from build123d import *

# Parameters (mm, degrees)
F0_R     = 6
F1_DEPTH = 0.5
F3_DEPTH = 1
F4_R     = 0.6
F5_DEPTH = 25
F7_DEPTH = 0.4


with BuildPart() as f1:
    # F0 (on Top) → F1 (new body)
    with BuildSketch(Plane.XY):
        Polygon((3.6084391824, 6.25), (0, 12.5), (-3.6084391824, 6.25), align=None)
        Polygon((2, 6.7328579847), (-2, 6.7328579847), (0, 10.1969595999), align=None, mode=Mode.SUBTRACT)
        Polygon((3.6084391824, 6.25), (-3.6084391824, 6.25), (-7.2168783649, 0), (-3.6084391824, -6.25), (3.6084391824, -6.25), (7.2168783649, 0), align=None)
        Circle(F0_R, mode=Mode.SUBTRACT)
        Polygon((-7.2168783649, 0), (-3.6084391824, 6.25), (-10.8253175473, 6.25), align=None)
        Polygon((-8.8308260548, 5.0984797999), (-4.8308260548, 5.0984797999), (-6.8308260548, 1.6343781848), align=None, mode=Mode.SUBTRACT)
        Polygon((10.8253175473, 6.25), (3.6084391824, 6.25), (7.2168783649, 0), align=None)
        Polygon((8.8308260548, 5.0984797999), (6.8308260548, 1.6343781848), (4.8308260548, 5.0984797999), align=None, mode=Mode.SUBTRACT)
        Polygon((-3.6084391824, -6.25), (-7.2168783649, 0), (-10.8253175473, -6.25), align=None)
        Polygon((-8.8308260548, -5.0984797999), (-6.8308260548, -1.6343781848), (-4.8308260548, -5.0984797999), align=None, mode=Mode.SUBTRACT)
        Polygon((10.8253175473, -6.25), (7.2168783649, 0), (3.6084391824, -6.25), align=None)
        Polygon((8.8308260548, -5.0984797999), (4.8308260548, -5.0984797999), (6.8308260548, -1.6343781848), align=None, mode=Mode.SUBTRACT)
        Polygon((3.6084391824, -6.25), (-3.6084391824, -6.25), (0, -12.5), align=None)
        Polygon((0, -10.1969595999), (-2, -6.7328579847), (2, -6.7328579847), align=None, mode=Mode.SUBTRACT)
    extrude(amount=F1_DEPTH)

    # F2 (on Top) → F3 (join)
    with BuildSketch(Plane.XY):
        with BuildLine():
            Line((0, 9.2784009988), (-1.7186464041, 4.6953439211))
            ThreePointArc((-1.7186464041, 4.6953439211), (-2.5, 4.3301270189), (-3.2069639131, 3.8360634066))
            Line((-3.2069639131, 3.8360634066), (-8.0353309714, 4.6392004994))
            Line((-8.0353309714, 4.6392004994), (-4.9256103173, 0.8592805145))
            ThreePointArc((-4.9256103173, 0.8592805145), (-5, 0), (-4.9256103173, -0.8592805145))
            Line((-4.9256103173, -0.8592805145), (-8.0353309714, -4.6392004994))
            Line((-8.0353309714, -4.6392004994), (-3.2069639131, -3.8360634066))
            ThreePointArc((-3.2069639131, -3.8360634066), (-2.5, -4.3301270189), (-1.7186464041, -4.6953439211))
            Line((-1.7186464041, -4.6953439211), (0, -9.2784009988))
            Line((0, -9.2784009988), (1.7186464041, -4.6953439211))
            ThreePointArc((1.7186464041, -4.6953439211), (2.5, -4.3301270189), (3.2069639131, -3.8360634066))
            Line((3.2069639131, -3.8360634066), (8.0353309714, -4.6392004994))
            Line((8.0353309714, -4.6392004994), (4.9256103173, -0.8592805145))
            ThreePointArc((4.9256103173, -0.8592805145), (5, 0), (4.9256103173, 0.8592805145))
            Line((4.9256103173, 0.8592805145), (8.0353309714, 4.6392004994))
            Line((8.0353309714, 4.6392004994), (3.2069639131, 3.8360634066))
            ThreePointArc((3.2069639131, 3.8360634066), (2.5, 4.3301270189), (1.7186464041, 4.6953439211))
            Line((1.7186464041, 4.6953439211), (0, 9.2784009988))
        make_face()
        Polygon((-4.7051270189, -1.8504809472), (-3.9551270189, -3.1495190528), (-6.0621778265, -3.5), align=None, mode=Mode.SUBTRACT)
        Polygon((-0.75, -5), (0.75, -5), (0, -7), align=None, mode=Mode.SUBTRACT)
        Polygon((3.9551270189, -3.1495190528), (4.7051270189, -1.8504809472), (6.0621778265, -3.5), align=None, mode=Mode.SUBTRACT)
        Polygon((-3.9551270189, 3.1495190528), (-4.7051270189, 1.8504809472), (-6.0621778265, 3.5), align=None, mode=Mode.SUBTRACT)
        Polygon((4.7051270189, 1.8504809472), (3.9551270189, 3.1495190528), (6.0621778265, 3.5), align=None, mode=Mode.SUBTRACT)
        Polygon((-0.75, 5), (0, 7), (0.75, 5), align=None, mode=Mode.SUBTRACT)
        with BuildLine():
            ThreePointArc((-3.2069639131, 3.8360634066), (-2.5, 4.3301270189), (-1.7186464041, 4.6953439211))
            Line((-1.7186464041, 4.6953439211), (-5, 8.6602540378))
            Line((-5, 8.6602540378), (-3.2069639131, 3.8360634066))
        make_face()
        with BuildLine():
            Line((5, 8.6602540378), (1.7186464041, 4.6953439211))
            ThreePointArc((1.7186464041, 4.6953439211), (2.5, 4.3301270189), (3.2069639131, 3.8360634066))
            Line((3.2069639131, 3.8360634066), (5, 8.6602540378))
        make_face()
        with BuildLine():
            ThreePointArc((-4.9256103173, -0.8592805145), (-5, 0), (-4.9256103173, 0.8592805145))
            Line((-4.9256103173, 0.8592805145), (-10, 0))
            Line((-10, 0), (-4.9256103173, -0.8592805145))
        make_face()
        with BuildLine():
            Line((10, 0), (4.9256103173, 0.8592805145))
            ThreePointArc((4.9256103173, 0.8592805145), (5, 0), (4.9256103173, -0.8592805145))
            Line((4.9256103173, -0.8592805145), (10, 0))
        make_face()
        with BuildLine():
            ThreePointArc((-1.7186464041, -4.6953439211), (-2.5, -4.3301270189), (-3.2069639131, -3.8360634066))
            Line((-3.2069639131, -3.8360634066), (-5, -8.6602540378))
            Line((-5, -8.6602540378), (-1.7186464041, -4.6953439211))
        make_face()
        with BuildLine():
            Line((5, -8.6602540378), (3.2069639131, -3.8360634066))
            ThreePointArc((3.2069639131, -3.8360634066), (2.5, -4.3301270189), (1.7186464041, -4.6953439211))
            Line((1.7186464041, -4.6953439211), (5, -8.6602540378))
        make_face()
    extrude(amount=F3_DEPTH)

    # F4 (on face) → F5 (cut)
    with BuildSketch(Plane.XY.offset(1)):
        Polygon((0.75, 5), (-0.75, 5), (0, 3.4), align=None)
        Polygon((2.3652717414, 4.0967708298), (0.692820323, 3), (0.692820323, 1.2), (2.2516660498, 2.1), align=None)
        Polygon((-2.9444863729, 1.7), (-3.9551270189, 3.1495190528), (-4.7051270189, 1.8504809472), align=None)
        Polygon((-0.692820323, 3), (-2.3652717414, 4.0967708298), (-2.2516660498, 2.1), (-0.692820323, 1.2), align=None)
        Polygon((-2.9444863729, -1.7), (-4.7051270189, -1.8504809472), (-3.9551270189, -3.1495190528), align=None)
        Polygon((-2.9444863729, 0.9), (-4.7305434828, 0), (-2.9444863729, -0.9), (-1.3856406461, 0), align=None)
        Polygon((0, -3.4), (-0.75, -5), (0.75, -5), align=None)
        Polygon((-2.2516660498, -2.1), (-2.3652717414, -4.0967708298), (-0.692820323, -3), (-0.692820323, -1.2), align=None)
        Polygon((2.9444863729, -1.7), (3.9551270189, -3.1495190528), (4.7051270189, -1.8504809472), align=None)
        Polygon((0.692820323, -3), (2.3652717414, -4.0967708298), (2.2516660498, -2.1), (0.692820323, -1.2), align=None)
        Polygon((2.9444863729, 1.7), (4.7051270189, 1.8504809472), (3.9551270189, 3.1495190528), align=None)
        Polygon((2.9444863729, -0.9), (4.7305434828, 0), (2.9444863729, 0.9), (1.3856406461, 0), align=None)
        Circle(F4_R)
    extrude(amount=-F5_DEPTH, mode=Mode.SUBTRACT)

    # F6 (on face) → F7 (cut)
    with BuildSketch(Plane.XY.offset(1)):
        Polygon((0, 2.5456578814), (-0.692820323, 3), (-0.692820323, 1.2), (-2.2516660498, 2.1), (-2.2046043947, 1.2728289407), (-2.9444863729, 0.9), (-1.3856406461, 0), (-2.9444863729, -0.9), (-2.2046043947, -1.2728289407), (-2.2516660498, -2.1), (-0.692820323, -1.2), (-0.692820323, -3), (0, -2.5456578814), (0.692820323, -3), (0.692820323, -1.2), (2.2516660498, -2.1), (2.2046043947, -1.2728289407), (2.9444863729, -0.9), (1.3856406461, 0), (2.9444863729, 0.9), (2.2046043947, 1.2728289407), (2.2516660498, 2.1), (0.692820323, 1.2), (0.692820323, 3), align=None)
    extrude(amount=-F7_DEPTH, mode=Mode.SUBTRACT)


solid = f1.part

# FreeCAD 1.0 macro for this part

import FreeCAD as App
import Part
import Sketcher
from FreeCAD import Vector
Q = App.Units.Quantity

doc = App.newDocument("Part")
body = doc.addObject("PartDesign::Body", "Body")

sketch1 = body.newObject("Sketcher::SketchObject", "Sketch")
sketch1.AttachmentSupport = (doc.getObject("XY_Plane"), [""])
sketch1.MapMode = "FlatFace"
sketch1.addGeometry([
    Part.LineSegment(Vector(3.608439, 6.25, 0), Vector(0, 12.5, 0)),
    Part.LineSegment(Vector(0, 12.5, 0), Vector(-3.608439, 6.25, 0)),
    Part.LineSegment(Vector(-3.608439, 6.25, 0), Vector(-10.825318, 6.25, 0)),
    Part.LineSegment(Vector(-10.825318, 6.25, 0), Vector(-7.216878, 0, 0)),
    Part.LineSegment(Vector(-7.216878, 0, 0), Vector(-10.825318, -6.25, 0)),
    Part.LineSegment(Vector(-10.825318, -6.25, 0), Vector(-3.608439, -6.25, 0)),
    Part.LineSegment(Vector(-3.608439, -6.25, 0), Vector(0, -12.5, 0)),
    Part.LineSegment(Vector(0, -12.5, 0), Vector(3.608439, -6.25, 0)),
    Part.LineSegment(Vector(3.608439, -6.25, 0), Vector(10.825318, -6.25, 0)),
    Part.LineSegment(Vector(10.825318, -6.25, 0), Vector(7.216878, 0, 0)),
    Part.LineSegment(Vector(7.216878, 0, 0), Vector(10.825318, 6.25, 0)),
    Part.LineSegment(Vector(10.825318, 6.25, 0), Vector(3.608439, 6.25, 0)),
    Part.LineSegment(Vector(-4.830826, -5.09848, 0), Vector(-8.830826, -5.09848, 0)),
    Part.LineSegment(Vector(-8.830826, -5.09848, 0), Vector(-6.830826, -1.634378, 0)),
    Part.LineSegment(Vector(-6.830826, -1.634378, 0), Vector(-4.830826, -5.09848, 0)),
    Part.LineSegment(Vector(2, -6.732858, 0), Vector(0, -10.19696, 0)),
    Part.LineSegment(Vector(0, -10.19696, 0), Vector(-2, -6.732858, 0)),
    Part.LineSegment(Vector(-2, -6.732858, 0), Vector(2, -6.732858, 0)),
    Part.LineSegment(Vector(6.830826, -1.634378, 0), Vector(8.830826, -5.09848, 0)),
    Part.LineSegment(Vector(8.830826, -5.09848, 0), Vector(4.830826, -5.09848, 0)),
    Part.LineSegment(Vector(4.830826, -5.09848, 0), Vector(6.830826, -1.634378, 0)),
    Part.LineSegment(Vector(-6.830826, 1.634378, 0), Vector(-8.830826, 5.09848, 0)),
    Part.LineSegment(Vector(-8.830826, 5.09848, 0), Vector(-4.830826, 5.09848, 0)),
    Part.LineSegment(Vector(-4.830826, 5.09848, 0), Vector(-6.830826, 1.634378, 0)),
    Part.Circle(Vector(0, 0, 0), Vector(0, 0, 1), 6),
    Part.LineSegment(Vector(4.830826, 5.09848, 0), Vector(8.830826, 5.09848, 0)),
    Part.LineSegment(Vector(8.830826, 5.09848, 0), Vector(6.830826, 1.634378, 0)),
    Part.LineSegment(Vector(6.830826, 1.634378, 0), Vector(4.830826, 5.09848, 0)),
    Part.LineSegment(Vector(0, 10.19696, 0), Vector(2, 6.732858, 0)),
    Part.LineSegment(Vector(2, 6.732858, 0), Vector(-2, 6.732858, 0)),
    Part.LineSegment(Vector(-2, 6.732858, 0), Vector(0, 10.19696, 0)),
], False)
sketch1.addConstraint([
    Sketcher.Constraint("Coincident", 0, 2, 1, 1),
    Sketcher.Constraint("Coincident", 1, 2, 2, 1),
    Sketcher.Constraint("Coincident", 2, 2, 3, 1),
    Sketcher.Constraint("Coincident", 3, 2, 4, 1),
    Sketcher.Constraint("Coincident", 4, 2, 5, 1),
    Sketcher.Constraint("Coincident", 5, 2, 6, 1),
    Sketcher.Constraint("Coincident", 6, 2, 7, 1),
    Sketcher.Constraint("Coincident", 7, 2, 8, 1),
    Sketcher.Constraint("Coincident", 8, 2, 9, 1),
    Sketcher.Constraint("Coincident", 9, 2, 10, 1),
    Sketcher.Constraint("Coincident", 10, 2, 11, 1),
    Sketcher.Constraint("Coincident", 11, 2, 0, 1),
    Sketcher.Constraint("Coincident", 12, 2, 13, 1),
    Sketcher.Constraint("Coincident", 13, 2, 14, 1),
    Sketcher.Constraint("Coincident", 14, 2, 12, 1),
    Sketcher.Constraint("Coincident", 15, 2, 16, 1),
    Sketcher.Constraint("Coincident", 16, 2, 17, 1),
    Sketcher.Constraint("Coincident", 17, 2, 15, 1),
    Sketcher.Constraint("Coincident", 18, 2, 19, 1),
    Sketcher.Constraint("Coincident", 19, 2, 20, 1),
    Sketcher.Constraint("Coincident", 20, 2, 18, 1),
    Sketcher.Constraint("Coincident", 21, 2, 22, 1),
    Sketcher.Constraint("Coincident", 22, 2, 23, 1),
    Sketcher.Constraint("Coincident", 23, 2, 21, 1),
    Sketcher.Constraint("Coincident", 25, 2, 26, 1),
    Sketcher.Constraint("Coincident", 26, 2, 27, 1),
    Sketcher.Constraint("Coincident", 27, 2, 25, 1),
    Sketcher.Constraint("Coincident", 28, 2, 29, 1),
    Sketcher.Constraint("Coincident", 29, 2, 30, 1),
    Sketcher.Constraint("Coincident", 30, 2, 28, 1),
    Sketcher.Constraint("Horizontal", 2),
    Sketcher.Constraint("Horizontal", 5),
    Sketcher.Constraint("Horizontal", 8),
    Sketcher.Constraint("Horizontal", 11),
    Sketcher.Constraint("Horizontal", 12),
    Sketcher.Constraint("Horizontal", 17),
    Sketcher.Constraint("Horizontal", 19),
    Sketcher.Constraint("Horizontal", 22),
    Sketcher.Constraint("Horizontal", 25),
    Sketcher.Constraint("Horizontal", 29),
    Sketcher.Constraint("Coincident", 24, 3, -1, 1),
    Sketcher.Constraint("Symmetric", 0, 2, 6, 2, -1, 1),
    Sketcher.Constraint("Symmetric", 1, 2, 7, 2, -1, 1),
    Sketcher.Constraint("Symmetric", 3, 2, 9, 2, -1, 1),
    Sketcher.Constraint("Symmetric", 4, 2, 10, 2, -1, 1),
    Sketcher.Constraint("Symmetric", 18, 2, 21, 2, -1, 1),
    Sketcher.Constraint("Symmetric", 20, 2, 23, 2, -1, 1),
    Sketcher.Constraint("Symmetric", 12, 2, 25, 2, -1, 1),
    Sketcher.Constraint("Symmetric", 13, 2, 26, 2, -1, 1),
    Sketcher.Constraint("Symmetric", 16, 2, 28, 2, -1, 1),
    Sketcher.Constraint("Symmetric", 15, 2, 30, 2, -1, 1),
    Sketcher.Constraint("Symmetric", 5, 2, 7, 2, -2),
    Sketcher.Constraint("Symmetric", 12, 2, 18, 2, -2),
    Sketcher.Constraint("Symmetric", 13, 2, 20, 2, -2),
    Sketcher.Constraint("PointOnObject", 0, 2, -2),
    Sketcher.Constraint("PointOnObject", 3, 2, -1),
    Sketcher.Constraint("PointOnObject", 15, 2, -2),
    Sketcher.Constraint("Parallel", 0, 3),
    Sketcher.Constraint("Parallel", 1, 4),
    Sketcher.Constraint("Parallel", 3, 6),
    Sketcher.Constraint("Parallel", 6, 9),
    Sketcher.Constraint("Parallel", 10, 13),
    Sketcher.Constraint("Parallel", 9, 14),
    Sketcher.Constraint("Parallel", 13, 15),
    Sketcher.Constraint("Parallel", 14, 16),
    Sketcher.Constraint("Parallel", 15, 20),
    Sketcher.Constraint("Parallel", 20, 23),
    Sketcher.Constraint("Parallel", 21, 27),
    Sketcher.Constraint("Parallel", 26, 30),
    Sketcher.Constraint("Equal", 12, 17),
    Sketcher.Constraint("Equal", 1, 3),
    Sketcher.Constraint("Diameter", 24, Q("12 mm")),
    Sketcher.Constraint("DistanceX", 12, 2, 12, 1, Q("4 mm")),
    Sketcher.Constraint("Angle", 0, Q("120 deg")),
    Sketcher.Constraint("DistanceY", -1, 1, 0, 2, Q("12.5 mm")),
    Sketcher.Constraint("DistanceX", 2, 2, 2, 1, Q("7.216878 mm")),
    Sketcher.Constraint("DistanceY", 12, 2, -1, 1, Q("5.09848 mm")),
    Sketcher.Constraint("DistanceY", 15, 2, -1, 1, Q("10.19696 mm")),
    Sketcher.Constraint("DistanceX", 4, 2, 12, 2, Q("1.994491 mm")),
])
pad1 = body.newObject("PartDesign::Pad", "Pad")
pad1.Profile = sketch1
pad1.Length = 0.5

sketch2 = body.newObject("Sketcher::SketchObject", "Sketch001")
sketch2.AttachmentSupport = (doc.getObject("XY_Plane"), [""])
sketch2.MapMode = "FlatFace"
sketch2.addGeometry([
    Part.LineSegment(Vector(0, 9.278401, 0), Vector(-1.718646, 4.695344, 0)),
    Part.LineSegment(Vector(-1.718646, 4.695344, 0), Vector(-5, 8.660254, 0)),
    Part.LineSegment(Vector(-5, 8.660254, 0), Vector(-3.206964, 3.836063, 0)),
    Part.LineSegment(Vector(-3.206964, 3.836063, 0), Vector(-8.035331, 4.6392, 0)),
    Part.LineSegment(Vector(-8.035331, 4.6392, 0), Vector(-4.92561, 0.859281, 0)),
    Part.LineSegment(Vector(-4.92561, 0.859281, 0), Vector(-10, 0, 0)),
    Part.LineSegment(Vector(-10, 0, 0), Vector(-4.92561, -0.859281, 0)),
    Part.LineSegment(Vector(-4.92561, -0.859281, 0), Vector(-8.035331, -4.6392, 0)),
    Part.LineSegment(Vector(-8.035331, -4.6392, 0), Vector(-3.206964, -3.836063, 0)),
    Part.LineSegment(Vector(-3.206964, -3.836063, 0), Vector(-5, -8.660254, 0)),
    Part.LineSegment(Vector(-5, -8.660254, 0), Vector(-1.718646, -4.695344, 0)),
    Part.LineSegment(Vector(-1.718646, -4.695344, 0), Vector(0, -9.278401, 0)),
    Part.LineSegment(Vector(0, -9.278401, 0), Vector(1.718646, -4.695344, 0)),
    Part.LineSegment(Vector(1.718646, -4.695344, 0), Vector(5, -8.660254, 0)),
    Part.LineSegment(Vector(5, -8.660254, 0), Vector(3.206964, -3.836063, 0)),
    Part.LineSegment(Vector(3.206964, -3.836063, 0), Vector(8.035331, -4.6392, 0)),
    Part.LineSegment(Vector(8.035331, -4.6392, 0), Vector(4.92561, -0.859281, 0)),
    Part.LineSegment(Vector(4.92561, -0.859281, 0), Vector(10, 0, 0)),
    Part.LineSegment(Vector(10, 0, 0), Vector(4.92561, 0.859281, 0)),
    Part.LineSegment(Vector(4.92561, 0.859281, 0), Vector(8.035331, 4.6392, 0)),
    Part.LineSegment(Vector(8.035331, 4.6392, 0), Vector(3.206964, 3.836063, 0)),
    Part.LineSegment(Vector(3.206964, 3.836063, 0), Vector(5, 8.660254, 0)),
    Part.LineSegment(Vector(5, 8.660254, 0), Vector(1.718646, 4.695344, 0)),
    Part.LineSegment(Vector(1.718646, 4.695344, 0), Vector(0, 9.278401, 0)),
    Part.LineSegment(Vector(-6.062178, -3.5, 0), Vector(-4.705127, -1.850481, 0)),
    Part.LineSegment(Vector(-4.705127, -1.850481, 0), Vector(-3.955127, -3.149519, 0)),
    Part.LineSegment(Vector(-3.955127, -3.149519, 0), Vector(-6.062178, -3.5, 0)),
    Part.LineSegment(Vector(0, -7, 0), Vector(-0.75, -5, 0)),
    Part.LineSegment(Vector(-0.75, -5, 0), Vector(0.75, -5, 0)),
    Part.LineSegment(Vector(0.75, -5, 0), Vector(0, -7, 0)),
    Part.LineSegment(Vector(6.062178, -3.5, 0), Vector(3.955127, -3.149519, 0)),
    Part.LineSegment(Vector(3.955127, -3.149519, 0), Vector(4.705127, -1.850481, 0)),
    Part.LineSegment(Vector(4.705127, -1.850481, 0), Vector(6.062178, -3.5, 0)),
    Part.LineSegment(Vector(-6.062178, 3.5, 0), Vector(-3.955127, 3.149519, 0)),
    Part.LineSegment(Vector(-3.955127, 3.149519, 0), Vector(-4.705127, 1.850481, 0)),
    Part.LineSegment(Vector(-4.705127, 1.850481, 0), Vector(-6.062178, 3.5, 0)),
    Part.LineSegment(Vector(6.062178, 3.5, 0), Vector(4.705127, 1.850481, 0)),
    Part.LineSegment(Vector(4.705127, 1.850481, 0), Vector(3.955127, 3.149519, 0)),
    Part.LineSegment(Vector(3.955127, 3.149519, 0), Vector(6.062178, 3.5, 0)),
    Part.LineSegment(Vector(0.75, 5, 0), Vector(-0.75, 5, 0)),
    Part.LineSegment(Vector(-0.75, 5, 0), Vector(0, 7, 0)),
    Part.LineSegment(Vector(0, 7, 0), Vector(0.75, 5, 0)),
], False)
sketch2.addConstraint([
    Sketcher.Constraint("Coincident", 0, 2, 1, 1),
    Sketcher.Constraint("Coincident", 1, 2, 2, 1),
    Sketcher.Constraint("Coincident", 2, 2, 3, 1),
    Sketcher.Constraint("Coincident", 3, 2, 4, 1),
    Sketcher.Constraint("Coincident", 4, 2, 5, 1),
    Sketcher.Constraint("Coincident", 5, 2, 6, 1),
    Sketcher.Constraint("Coincident", 6, 2, 7, 1),
    Sketcher.Constraint("Coincident", 7, 2, 8, 1),
    Sketcher.Constraint("Coincident", 8, 2, 9, 1),
    Sketcher.Constraint("Coincident", 9, 2, 10, 1),
    Sketcher.Constraint("Coincident", 10, 2, 11, 1),
    Sketcher.Constraint("Coincident", 11, 2, 12, 1),
    Sketcher.Constraint("Coincident", 12, 2, 13, 1),
    Sketcher.Constraint("Coincident", 13, 2, 14, 1),
    Sketcher.Constraint("Coincident", 14, 2, 15, 1),
    Sketcher.Constraint("Coincident", 15, 2, 16, 1),
    Sketcher.Constraint("Coincident", 16, 2, 17, 1),
    Sketcher.Constraint("Coincident", 17, 2, 18, 1),
    Sketcher.Constraint("Coincident", 18, 2, 19, 1),
    Sketcher.Constraint("Coincident", 19, 2, 20, 1),
    Sketcher.Constraint("Coincident", 20, 2, 21, 1),
    Sketcher.Constraint("Coincident", 21, 2, 22, 1),
    Sketcher.Constraint("Coincident", 22, 2, 23, 1),
    Sketcher.Constraint("Coincident", 23, 2, 0, 1),
    Sketcher.Constraint("Coincident", 24, 2, 25, 1),
    Sketcher.Constraint("Coincident", 25, 2, 26, 1),
    Sketcher.Constraint("Coincident", 26, 2, 24, 1),
    Sketcher.Constraint("Coincident", 27, 2, 28, 1),
    Sketcher.Constraint("Coincident", 28, 2, 29, 1),
    Sketcher.Constraint("Coincident", 29, 2, 27, 1),
    Sketcher.Constraint("Coincident", 30, 2, 31, 1),
    Sketcher.Constraint("Coincident", 31, 2, 32, 1),
    Sketcher.Constraint("Coincident", 32, 2, 30, 1),
    Sketcher.Constraint("Coincident", 33, 2, 34, 1),
    Sketcher.Constraint("Coincident", 34, 2, 35, 1),
    Sketcher.Constraint("Coincident", 35, 2, 33, 1),
    Sketcher.Constraint("Coincident", 36, 2, 37, 1),
    Sketcher.Constraint("Coincident", 37, 2, 38, 1),
    Sketcher.Constraint("Coincident", 38, 2, 36, 1),
    Sketcher.Constraint("Coincident", 39, 2, 40, 1),
    Sketcher.Constraint("Coincident", 40, 2, 41, 1),
    Sketcher.Constraint("Coincident", 41, 2, 39, 1),
    Sketcher.Constraint("Horizontal", 28),
    Sketcher.Constraint("Horizontal", 39),
    Sketcher.Constraint("Symmetric", 0, 2, 12, 2, -1, 1),
    Sketcher.Constraint("Symmetric", 1, 2, 13, 2, -1, 1),
    Sketcher.Constraint("Symmetric", 2, 2, 14, 2, -1, 1),
    Sketcher.Constraint("Symmetric", 3, 2, 15, 2, -1, 1),
    Sketcher.Constraint("Symmetric", 4, 2, 16, 2, -1, 1),
    Sketcher.Constraint("Symmetric", 5, 2, 17, 2, -1, 1),
    Sketcher.Constraint("Symmetric", 6, 2, 18, 2, -1, 1),
    Sketcher.Constraint("Symmetric", 7, 2, 19, 2, -1, 1),
    Sketcher.Constraint("Symmetric", 8, 2, 20, 2, -1, 1),
    Sketcher.Constraint("Symmetric", 9, 2, 21, 2, -1, 1),
    Sketcher.Constraint("Symmetric", 10, 2, 22, 2, -1, 1),
    Sketcher.Constraint("Symmetric", 11, 2, 23, 2, -1, 1),
    Sketcher.Constraint("Symmetric", 30, 2, 33, 2, -1, 1),
    Sketcher.Constraint("Symmetric", 31, 2, 34, 2, -1, 1),
    Sketcher.Constraint("Symmetric", 32, 2, 35, 2, -1, 1),
    Sketcher.Constraint("Symmetric", 24, 2, 36, 2, -1, 1),
    Sketcher.Constraint("Symmetric", 25, 2, 37, 2, -1, 1),
    Sketcher.Constraint("Symmetric", 26, 2, 38, 2, -1, 1),
    Sketcher.Constraint("Symmetric", 28, 2, 39, 2, -1, 1),
    Sketcher.Constraint("Symmetric", 29, 2, 40, 2, -1, 1),
    Sketcher.Constraint("Symmetric", 10, 2, 12, 2, -2),
    Sketcher.Constraint("Symmetric", 9, 2, 13, 2, -2),
    Sketcher.Constraint("Symmetric", 8, 2, 14, 2, -2),
    Sketcher.Constraint("Symmetric", 7, 2, 15, 2, -2),
    Sketcher.Constraint("Symmetric", 6, 2, 16, 2, -2),
    Sketcher.Constraint("Symmetric", 25, 2, 30, 2, -2),
    Sketcher.Constraint("Symmetric", 24, 2, 31, 2, -2),
    Sketcher.Constraint("Symmetric", 26, 2, 32, 2, -2),
    Sketcher.Constraint("PointOnObject", 5, 2, -1),
    Sketcher.Constraint("PointOnObject", 11, 2, -2),
    Sketcher.Constraint("PointOnObject", 29, 2, -2),
    Sketcher.Constraint("Parallel", 19, 24),
    Sketcher.Constraint("Parallel", 20, 26),
    Sketcher.Constraint("Parallel", 23, 27),
    Sketcher.Constraint("Parallel", 12, 29),
    Sketcher.Constraint("Parallel", 27, 41),
    Sketcher.Constraint("Equal", 1, 2),
    Sketcher.Constraint("Equal", 0, 3),
    Sketcher.Constraint("Equal", 3, 4),
    Sketcher.Constraint("Equal", 2, 5),
    Sketcher.Constraint("Equal", 24, 26),
    Sketcher.Constraint("Equal", 26, 27),
    Sketcher.Constraint("Angle", 25, Q("-60 deg")),
    Sketcher.Constraint("DistanceX", 28, 1, 28, 2, Q("1.5 mm")),
    Sketcher.Constraint("DistanceX", 1, 2, -1, 1, Q("5 mm")),
    Sketcher.Constraint("DistanceX", 5, 2, -1, 1, Q("10 mm")),
    Sketcher.Constraint("DistanceY", 27, 2, -1, 1, Q("5 mm")),
    Sketcher.Constraint("DistanceY", 29, 2, -1, 1, Q("7 mm")),
    Sketcher.Constraint("Distance", 25, Q("1.5 mm")),
    Sketcher.Constraint("DistanceY", 26, 2, -1, 1, Q("3.5 mm")),
    Sketcher.Constraint("DistanceY", -1, 1, 3, 2, Q("4.6392 mm")),
    Sketcher.Constraint("DistanceY", 11, 2, -1, 1, Q("9.278401 mm")),
    Sketcher.Constraint("DistanceY", 24, 2, 6, 2, Q("0.9912 mm")),
    Sketcher.Constraint("DistanceX", 24, 2, 10, 2, Q("2.986481 mm")),
])
pad2 = body.newObject("PartDesign::Pad", "Pad001")
pad2.Profile = sketch2
pad2.Length = 1

sketch3 = body.newObject("Sketcher::SketchObject", "Sketch002")
sketch3.AttachmentSupport = (doc.getObject("XY_Plane"), [""])
sketch3.MapMode = "FlatFace"
sketch3.AttachmentOffset = App.Placement(Vector(0, 0, 1), App.Rotation())
sketch3.addGeometry([
    Part.LineSegment(Vector(0.75, 5, 0), Vector(-0.75, 5, 0)),
    Part.LineSegment(Vector(-0.75, 5, 0), Vector(0, 3.4, 0)),
    Part.LineSegment(Vector(0, 3.4, 0), Vector(0.75, 5, 0)),
    Part.LineSegment(Vector(2.365272, 4.096771, 0), Vector(0.69282, 3, 0)),
    Part.LineSegment(Vector(0.69282, 3, 0), Vector(0.69282, 1.2, 0)),
    Part.LineSegment(Vector(0.69282, 1.2, 0), Vector(2.251666, 2.1, 0)),
    Part.LineSegment(Vector(2.251666, 2.1, 0), Vector(2.365272, 4.096771, 0)),
    Part.LineSegment(Vector(-2.944486, 1.7, 0), Vector(-3.955127, 3.149519, 0)),
    Part.LineSegment(Vector(-3.955127, 3.149519, 0), Vector(-4.705127, 1.850481, 0)),
    Part.LineSegment(Vector(-4.705127, 1.850481, 0), Vector(-2.944486, 1.7, 0)),
    Part.LineSegment(Vector(-0.69282, 3, 0), Vector(-2.365272, 4.096771, 0)),
    Part.LineSegment(Vector(-2.365272, 4.096771, 0), Vector(-2.251666, 2.1, 0)),
    Part.LineSegment(Vector(-2.251666, 2.1, 0), Vector(-0.69282, 1.2, 0)),
    Part.LineSegment(Vector(-0.69282, 1.2, 0), Vector(-0.69282, 3, 0)),
    Part.LineSegment(Vector(-2.944486, -1.7, 0), Vector(-4.705127, -1.850481, 0)),
    Part.LineSegment(Vector(-4.705127, -1.850481, 0), Vector(-3.955127, -3.149519, 0)),
    Part.LineSegment(Vector(-3.955127, -3.149519, 0), Vector(-2.944486, -1.7, 0)),
    Part.LineSegment(Vector(-2.944486, 0.9, 0), Vector(-4.730543, 0, 0)),
    Part.LineSegment(Vector(-4.730543, 0, 0), Vector(-2.944486, -0.9, 0)),
    Part.LineSegment(Vector(-2.944486, -0.9, 0), Vector(-1.385641, 0, 0)),
    Part.LineSegment(Vector(-1.385641, 0, 0), Vector(-2.944486, 0.9, 0)),
    Part.LineSegment(Vector(0, -3.4, 0), Vector(-0.75, -5, 0)),
    Part.LineSegment(Vector(-0.75, -5, 0), Vector(0.75, -5, 0)),
    Part.LineSegment(Vector(0.75, -5, 0), Vector(0, -3.4, 0)),
    Part.LineSegment(Vector(-2.251666, -2.1, 0), Vector(-2.365272, -4.096771, 0)),
    Part.LineSegment(Vector(-2.365272, -4.096771, 0), Vector(-0.69282, -3, 0)),
    Part.LineSegment(Vector(-0.69282, -3, 0), Vector(-0.69282, -1.2, 0)),
    Part.LineSegment(Vector(-0.69282, -1.2, 0), Vector(-2.251666, -2.1, 0)),
    Part.LineSegment(Vector(2.944486, -1.7, 0), Vector(3.955127, -3.149519, 0)),
    Part.LineSegment(Vector(3.955127, -3.149519, 0), Vector(4.705127, -1.850481, 0)),
    Part.LineSegment(Vector(4.705127, -1.850481, 0), Vector(2.944486, -1.7, 0)),
    Part.LineSegment(Vector(0.69282, -3, 0), Vector(2.365272, -4.096771, 0)),
    Part.LineSegment(Vector(2.365272, -4.096771, 0), Vector(2.251666, -2.1, 0)),
    Part.LineSegment(Vector(2.251666, -2.1, 0), Vector(0.69282, -1.2, 0)),
    Part.LineSegment(Vector(0.69282, -1.2, 0), Vector(0.69282, -3, 0)),
    Part.LineSegment(Vector(2.944486, 1.7, 0), Vector(4.705127, 1.850481, 0)),
    Part.LineSegment(Vector(4.705127, 1.850481, 0), Vector(3.955127, 3.149519, 0)),
    Part.LineSegment(Vector(3.955127, 3.149519, 0), Vector(2.944486, 1.7, 0)),
    Part.LineSegment(Vector(2.944486, -0.9, 0), Vector(4.730543, 0, 0)),
    Part.LineSegment(Vector(4.730543, 0, 0), Vector(2.944486, 0.9, 0)),
    Part.LineSegment(Vector(2.944486, 0.9, 0), Vector(1.385641, 0, 0)),
    Part.LineSegment(Vector(1.385641, 0, 0), Vector(2.944486, -0.9, 0)),
    Part.Circle(Vector(0, 0, 0), Vector(0, 0, 1), 0.6),
], False)
sketch3.addConstraint([
    Sketcher.Constraint("Coincident", 0, 2, 1, 1),
    Sketcher.Constraint("Coincident", 1, 2, 2, 1),
    Sketcher.Constraint("Coincident", 2, 2, 0, 1),
    Sketcher.Constraint("Coincident", 3, 2, 4, 1),
    Sketcher.Constraint("Coincident", 4, 2, 5, 1),
    Sketcher.Constraint("Coincident", 5, 2, 6, 1),
    Sketcher.Constraint("Coincident", 6, 2, 3, 1),
    Sketcher.Constraint("Coincident", 7, 2, 8, 1),
    Sketcher.Constraint("Coincident", 8, 2, 9, 1),
    Sketcher.Constraint("Coincident", 9, 2, 7, 1),
    Sketcher.Constraint("Coincident", 10, 2, 11, 1),
    Sketcher.Constraint("Coincident", 11, 2, 12, 1),
    Sketcher.Constraint("Coincident", 12, 2, 13, 1),
    Sketcher.Constraint("Coincident", 13, 2, 10, 1),
    Sketcher.Constraint("Coincident", 14, 2, 15, 1),
    Sketcher.Constraint("Coincident", 15, 2, 16, 1),
    Sketcher.Constraint("Coincident", 16, 2, 14, 1),
    Sketcher.Constraint("Coincident", 17, 2, 18, 1),
    Sketcher.Constraint("Coincident", 18, 2, 19, 1),
    Sketcher.Constraint("Coincident", 19, 2, 20, 1),
    Sketcher.Constraint("Coincident", 20, 2, 17, 1),
    Sketcher.Constraint("Coincident", 21, 2, 22, 1),
    Sketcher.Constraint("Coincident", 22, 2, 23, 1),
    Sketcher.Constraint("Coincident", 23, 2, 21, 1),
    Sketcher.Constraint("Coincident", 24, 2, 25, 1),
    Sketcher.Constraint("Coincident", 25, 2, 26, 1),
    Sketcher.Constraint("Coincident", 26, 2, 27, 1),
    Sketcher.Constraint("Coincident", 27, 2, 24, 1),
    Sketcher.Constraint("Coincident", 28, 2, 29, 1),
    Sketcher.Constraint("Coincident", 29, 2, 30, 1),
    Sketcher.Constraint("Coincident", 30, 2, 28, 1),
    Sketcher.Constraint("Coincident", 31, 2, 32, 1),
    Sketcher.Constraint("Coincident", 32, 2, 33, 1),
    Sketcher.Constraint("Coincident", 33, 2, 34, 1),
    Sketcher.Constraint("Coincident", 34, 2, 31, 1),
    Sketcher.Constraint("Coincident", 35, 2, 36, 1),
    Sketcher.Constraint("Coincident", 36, 2, 37, 1),
    Sketcher.Constraint("Coincident", 37, 2, 35, 1),
    Sketcher.Constraint("Coincident", 38, 2, 39, 1),
    Sketcher.Constraint("Coincident", 39, 2, 40, 1),
    Sketcher.Constraint("Coincident", 40, 2, 41, 1),
    Sketcher.Constraint("Coincident", 41, 2, 38, 1),
    Sketcher.Constraint("Horizontal", 0),
    Sketcher.Constraint("Vertical", 4),
    Sketcher.Constraint("Vertical", 13),
    Sketcher.Constraint("Horizontal", 22),
    Sketcher.Constraint("Vertical", 26),
    Sketcher.Constraint("Vertical", 34),
    Sketcher.Constraint("Coincident", 42, 3, -1, 1),
    Sketcher.Constraint("Symmetric", 2, 2, 21, 2, -1, 1),
    Sketcher.Constraint("Symmetric", 1, 2, 23, 2, -1, 1),
    Sketcher.Constraint("Symmetric", 6, 2, 24, 2, -1, 1),
    Sketcher.Constraint("Symmetric", 3, 2, 25, 2, -1, 1),
    Sketcher.Constraint("Symmetric", 5, 2, 27, 2, -1, 1),
    Sketcher.Constraint("Symmetric", 7, 2, 28, 2, -1, 1),
    Sketcher.Constraint("Symmetric", 8, 2, 29, 2, -1, 1),
    Sketcher.Constraint("Symmetric", 9, 2, 30, 2, -1, 1),
    Sketcher.Constraint("Symmetric", 10, 2, 31, 2, -1, 1),
    Sketcher.Constraint("Symmetric", 11, 2, 32, 2, -1, 1),
    Sketcher.Constraint("Symmetric", 12, 2, 33, 2, -1, 1),
    Sketcher.Constraint("Symmetric", 14, 2, 35, 2, -1, 1),
    Sketcher.Constraint("Symmetric", 15, 2, 36, 2, -1, 1),
    Sketcher.Constraint("Symmetric", 16, 2, 37, 2, -1, 1),
    Sketcher.Constraint("Symmetric", 17, 2, 38, 2, -1, 1),
    Sketcher.Constraint("Symmetric", 18, 2, 39, 2, -1, 1),
    Sketcher.Constraint("Symmetric", 19, 2, 40, 2, -1, 1),
    Sketcher.Constraint("Symmetric", 20, 2, 41, 2, -1, 1),
    Sketcher.Constraint("Symmetric", 6, 2, 10, 2, -2),
    Sketcher.Constraint("Symmetric", 5, 2, 11, 2, -2),
    Sketcher.Constraint("Symmetric", 4, 2, 12, 2, -2),
    Sketcher.Constraint("Symmetric", 15, 2, 28, 2, -2),
    Sketcher.Constraint("Symmetric", 14, 2, 29, 2, -2),
    Sketcher.Constraint("Symmetric", 16, 2, 30, 2, -2),
    Sketcher.Constraint("Symmetric", 20, 2, 39, 2, -2),
    Sketcher.Constraint("PointOnObject", 1, 2, -2),
    Sketcher.Constraint("PointOnObject", 17, 2, -1),
    Sketcher.Constraint("PointOnObject", 19, 2, -1),
    Sketcher.Constraint("Perpendicular", 8, 12),
    Sketcher.Constraint("Perpendicular", 15, 19),
    Sketcher.Constraint("Parallel", 1, 23),
    Sketcher.Constraint("Parallel", 19, 27),
    Sketcher.Constraint("Parallel", 10, 31),
    Sketcher.Constraint("Horizontal", 3, 2, 13, 2),
    Sketcher.Constraint("Vertical", 16, 2, 18, 2),
    Sketcher.Constraint("Vertical", 0, 2, 21, 2),
    Sketcher.Constraint("Equal", 3, 6),
    Sketcher.Constraint("Equal", 2, 7),
    Sketcher.Constraint("Equal", 7, 9),
    Sketcher.Constraint("Equal", 11, 17),
    Sketcher.Constraint("Equal", 12, 19),
    Sketcher.Constraint("Diameter", 42, Q("1.2 mm")),
    Sketcher.Constraint("Angle", 5, Q("30 deg")),
    Sketcher.Constraint("Distance", 3, Q("2 mm")),
    Sketcher.Constraint("DistanceX", 0, 2, 0, 1, Q("1.5 mm")),
    Sketcher.Constraint("DistanceY", 4, 2, 4, 1, Q("1.8 mm")),
    Sketcher.Constraint("DistanceY", -1, 1, 0, 2, Q("5 mm")),
    Sketcher.Constraint("DistanceY", -1, 1, 3, 2, Q("3 mm")),
    Sketcher.Constraint("DistanceY", 14, 2, 7, 2, Q("5 mm")),
    Sketcher.Constraint("Distance", 5, Q("1.8 mm")),
    Sketcher.Constraint("Distance", 8, Q("1.5 mm")),
    Sketcher.Constraint("DistanceY", -1, 1, 1, 2, Q("3.4 mm")),
    Sketcher.Constraint("DistanceX", -1, 1, 3, 2, Q("0.69282 mm")),
    Sketcher.Constraint("DistanceX", 19, 2, -1, 1, Q("1.385641 mm")),
])
pocket1 = body.newObject("PartDesign::Pocket", "Pocket")
pocket1.Profile = sketch3
pocket1.Length = 25

sketch4 = body.newObject("Sketcher::SketchObject", "Sketch003")
sketch4.AttachmentSupport = (doc.getObject("XY_Plane"), [""])
sketch4.MapMode = "FlatFace"
sketch4.AttachmentOffset = App.Placement(Vector(0, 0, 1), App.Rotation())
sketch4.addGeometry([
    Part.LineSegment(Vector(0, 2.545658, 0), Vector(-0.69282, 3, 0)),
    Part.LineSegment(Vector(-0.69282, 3, 0), Vector(-0.69282, 1.2, 0)),
    Part.LineSegment(Vector(-0.69282, 1.2, 0), Vector(-2.251666, 2.1, 0)),
    Part.LineSegment(Vector(-2.251666, 2.1, 0), Vector(-2.204604, 1.272829, 0)),
    Part.LineSegment(Vector(-2.204604, 1.272829, 0), Vector(-2.944486, 0.9, 0)),
    Part.LineSegment(Vector(-2.944486, 0.9, 0), Vector(-1.385641, 0, 0)),
    Part.LineSegment(Vector(-1.385641, 0, 0), Vector(-2.944486, -0.9, 0)),
    Part.LineSegment(Vector(-2.944486, -0.9, 0), Vector(-2.204604, -1.272829, 0)),
    Part.LineSegment(Vector(-2.204604, -1.272829, 0), Vector(-2.251666, -2.1, 0)),
    Part.LineSegment(Vector(-2.251666, -2.1, 0), Vector(-0.69282, -1.2, 0)),
    Part.LineSegment(Vector(-0.69282, -1.2, 0), Vector(-0.69282, -3, 0)),
    Part.LineSegment(Vector(-0.69282, -3, 0), Vector(0, -2.545658, 0)),
    Part.LineSegment(Vector(0, -2.545658, 0), Vector(0.69282, -3, 0)),
    Part.LineSegment(Vector(0.69282, -3, 0), Vector(0.69282, -1.2, 0)),
    Part.LineSegment(Vector(0.69282, -1.2, 0), Vector(2.251666, -2.1, 0)),
    Part.LineSegment(Vector(2.251666, -2.1, 0), Vector(2.204604, -1.272829, 0)),
    Part.LineSegment(Vector(2.204604, -1.272829, 0), Vector(2.944486, -0.9, 0)),
    Part.LineSegment(Vector(2.944486, -0.9, 0), Vector(1.385641, 0, 0)),
    Part.LineSegment(Vector(1.385641, 0, 0), Vector(2.944486, 0.9, 0)),
    Part.LineSegment(Vector(2.944486, 0.9, 0), Vector(2.204604, 1.272829, 0)),
    Part.LineSegment(Vector(2.204604, 1.272829, 0), Vector(2.251666, 2.1, 0)),
    Part.LineSegment(Vector(2.251666, 2.1, 0), Vector(0.69282, 1.2, 0)),
    Part.LineSegment(Vector(0.69282, 1.2, 0), Vector(0.69282, 3, 0)),
    Part.LineSegment(Vector(0.69282, 3, 0), Vector(0, 2.545658, 0)),
], False)
sketch4.addConstraint([
    Sketcher.Constraint("Coincident", 0, 2, 1, 1),
    Sketcher.Constraint("Coincident", 1, 2, 2, 1),
    Sketcher.Constraint("Coincident", 2, 2, 3, 1),
    Sketcher.Constraint("Coincident", 3, 2, 4, 1),
    Sketcher.Constraint("Coincident", 4, 2, 5, 1),
    Sketcher.Constraint("Coincident", 5, 2, 6, 1),
    Sketcher.Constraint("Coincident", 6, 2, 7, 1),
    Sketcher.Constraint("Coincident", 7, 2, 8, 1),
    Sketcher.Constraint("Coincident", 8, 2, 9, 1),
    Sketcher.Constraint("Coincident", 9, 2, 10, 1),
    Sketcher.Constraint("Coincident", 10, 2, 11, 1),
    Sketcher.Constraint("Coincident", 11, 2, 12, 1),
    Sketcher.Constraint("Coincident", 12, 2, 13, 1),
    Sketcher.Constraint("Coincident", 13, 2, 14, 1),
    Sketcher.Constraint("Coincident", 14, 2, 15, 1),
    Sketcher.Constraint("Coincident", 15, 2, 16, 1),
    Sketcher.Constraint("Coincident", 16, 2, 17, 1),
    Sketcher.Constraint("Coincident", 17, 2, 18, 1),
    Sketcher.Constraint("Coincident", 18, 2, 19, 1),
    Sketcher.Constraint("Coincident", 19, 2, 20, 1),
    Sketcher.Constraint("Coincident", 20, 2, 21, 1),
    Sketcher.Constraint("Coincident", 21, 2, 22, 1),
    Sketcher.Constraint("Coincident", 22, 2, 23, 1),
    Sketcher.Constraint("Coincident", 23, 2, 0, 1),
    Sketcher.Constraint("Vertical", 1),
    Sketcher.Constraint("Vertical", 10),
    Sketcher.Constraint("Vertical", 13),
    Sketcher.Constraint("Vertical", 22),
    Sketcher.Constraint("Symmetric", 0, 2, 12, 2, -1, 1),
    Sketcher.Constraint("Symmetric", 2, 2, 14, 2, -1, 1),
    Sketcher.Constraint("Symmetric", 3, 2, 15, 2, -1, 1),
    Sketcher.Constraint("Symmetric", 4, 2, 16, 2, -1, 1),
    Sketcher.Constraint("Symmetric", 5, 2, 17, 2, -1, 1),
    Sketcher.Constraint("Symmetric", 6, 2, 18, 2, -1, 1),
    Sketcher.Constraint("Symmetric", 7, 2, 19, 2, -1, 1),
    Sketcher.Constraint("Symmetric", 8, 2, 20, 2, -1, 1),
    Sketcher.Constraint("Symmetric", 9, 2, 21, 2, -1, 1),
    Sketcher.Constraint("Symmetric", 11, 2, 23, 2, -1, 1),
    Sketcher.Constraint("Symmetric", 10, 2, 12, 2, -2),
    Sketcher.Constraint("Symmetric", 8, 2, 14, 2, -2),
    Sketcher.Constraint("Symmetric", 7, 2, 15, 2, -2),
    Sketcher.Constraint("Symmetric", 6, 2, 16, 2, -2),
    Sketcher.Constraint("PointOnObject", 5, 2, -1),
    Sketcher.Constraint("PointOnObject", 11, 2, -2),
    Sketcher.Constraint("Parallel", 2, 5),
    Sketcher.Constraint("Parallel", 6, 9),
    Sketcher.Constraint("Parallel", 5, 14),
    Sketcher.Constraint("Parallel", 11, 23),
    Sketcher.Constraint("Equal", 0, 3),
    Sketcher.Constraint("Equal", 3, 4),
    Sketcher.Constraint("Equal", 2, 5),
    Sketcher.Constraint("Angle", 2, Q("150 deg")),
    Sketcher.Constraint("DistanceY", 1, 2, 1, 1, Q("1.8 mm")),
    Sketcher.Constraint("DistanceY", -1, 1, 0, 2, Q("3 mm")),
    Sketcher.Constraint("DistanceY", 6, 2, 2, 2, Q("3 mm")),
    Sketcher.Constraint("Distance", 0, Q("0.828509 mm")),
    Sketcher.Constraint("DistanceX", 0, 2, -1, 1, Q("0.69282 mm")),
    Sketcher.Constraint("DistanceY", -1, 1, 3, 2, Q("1.272829 mm")),
])
pocket2 = body.newObject("PartDesign::Pocket", "Pocket001")
pocket2.Profile = sketch4
pocket2.Length = 0.4

doc.recompute()
